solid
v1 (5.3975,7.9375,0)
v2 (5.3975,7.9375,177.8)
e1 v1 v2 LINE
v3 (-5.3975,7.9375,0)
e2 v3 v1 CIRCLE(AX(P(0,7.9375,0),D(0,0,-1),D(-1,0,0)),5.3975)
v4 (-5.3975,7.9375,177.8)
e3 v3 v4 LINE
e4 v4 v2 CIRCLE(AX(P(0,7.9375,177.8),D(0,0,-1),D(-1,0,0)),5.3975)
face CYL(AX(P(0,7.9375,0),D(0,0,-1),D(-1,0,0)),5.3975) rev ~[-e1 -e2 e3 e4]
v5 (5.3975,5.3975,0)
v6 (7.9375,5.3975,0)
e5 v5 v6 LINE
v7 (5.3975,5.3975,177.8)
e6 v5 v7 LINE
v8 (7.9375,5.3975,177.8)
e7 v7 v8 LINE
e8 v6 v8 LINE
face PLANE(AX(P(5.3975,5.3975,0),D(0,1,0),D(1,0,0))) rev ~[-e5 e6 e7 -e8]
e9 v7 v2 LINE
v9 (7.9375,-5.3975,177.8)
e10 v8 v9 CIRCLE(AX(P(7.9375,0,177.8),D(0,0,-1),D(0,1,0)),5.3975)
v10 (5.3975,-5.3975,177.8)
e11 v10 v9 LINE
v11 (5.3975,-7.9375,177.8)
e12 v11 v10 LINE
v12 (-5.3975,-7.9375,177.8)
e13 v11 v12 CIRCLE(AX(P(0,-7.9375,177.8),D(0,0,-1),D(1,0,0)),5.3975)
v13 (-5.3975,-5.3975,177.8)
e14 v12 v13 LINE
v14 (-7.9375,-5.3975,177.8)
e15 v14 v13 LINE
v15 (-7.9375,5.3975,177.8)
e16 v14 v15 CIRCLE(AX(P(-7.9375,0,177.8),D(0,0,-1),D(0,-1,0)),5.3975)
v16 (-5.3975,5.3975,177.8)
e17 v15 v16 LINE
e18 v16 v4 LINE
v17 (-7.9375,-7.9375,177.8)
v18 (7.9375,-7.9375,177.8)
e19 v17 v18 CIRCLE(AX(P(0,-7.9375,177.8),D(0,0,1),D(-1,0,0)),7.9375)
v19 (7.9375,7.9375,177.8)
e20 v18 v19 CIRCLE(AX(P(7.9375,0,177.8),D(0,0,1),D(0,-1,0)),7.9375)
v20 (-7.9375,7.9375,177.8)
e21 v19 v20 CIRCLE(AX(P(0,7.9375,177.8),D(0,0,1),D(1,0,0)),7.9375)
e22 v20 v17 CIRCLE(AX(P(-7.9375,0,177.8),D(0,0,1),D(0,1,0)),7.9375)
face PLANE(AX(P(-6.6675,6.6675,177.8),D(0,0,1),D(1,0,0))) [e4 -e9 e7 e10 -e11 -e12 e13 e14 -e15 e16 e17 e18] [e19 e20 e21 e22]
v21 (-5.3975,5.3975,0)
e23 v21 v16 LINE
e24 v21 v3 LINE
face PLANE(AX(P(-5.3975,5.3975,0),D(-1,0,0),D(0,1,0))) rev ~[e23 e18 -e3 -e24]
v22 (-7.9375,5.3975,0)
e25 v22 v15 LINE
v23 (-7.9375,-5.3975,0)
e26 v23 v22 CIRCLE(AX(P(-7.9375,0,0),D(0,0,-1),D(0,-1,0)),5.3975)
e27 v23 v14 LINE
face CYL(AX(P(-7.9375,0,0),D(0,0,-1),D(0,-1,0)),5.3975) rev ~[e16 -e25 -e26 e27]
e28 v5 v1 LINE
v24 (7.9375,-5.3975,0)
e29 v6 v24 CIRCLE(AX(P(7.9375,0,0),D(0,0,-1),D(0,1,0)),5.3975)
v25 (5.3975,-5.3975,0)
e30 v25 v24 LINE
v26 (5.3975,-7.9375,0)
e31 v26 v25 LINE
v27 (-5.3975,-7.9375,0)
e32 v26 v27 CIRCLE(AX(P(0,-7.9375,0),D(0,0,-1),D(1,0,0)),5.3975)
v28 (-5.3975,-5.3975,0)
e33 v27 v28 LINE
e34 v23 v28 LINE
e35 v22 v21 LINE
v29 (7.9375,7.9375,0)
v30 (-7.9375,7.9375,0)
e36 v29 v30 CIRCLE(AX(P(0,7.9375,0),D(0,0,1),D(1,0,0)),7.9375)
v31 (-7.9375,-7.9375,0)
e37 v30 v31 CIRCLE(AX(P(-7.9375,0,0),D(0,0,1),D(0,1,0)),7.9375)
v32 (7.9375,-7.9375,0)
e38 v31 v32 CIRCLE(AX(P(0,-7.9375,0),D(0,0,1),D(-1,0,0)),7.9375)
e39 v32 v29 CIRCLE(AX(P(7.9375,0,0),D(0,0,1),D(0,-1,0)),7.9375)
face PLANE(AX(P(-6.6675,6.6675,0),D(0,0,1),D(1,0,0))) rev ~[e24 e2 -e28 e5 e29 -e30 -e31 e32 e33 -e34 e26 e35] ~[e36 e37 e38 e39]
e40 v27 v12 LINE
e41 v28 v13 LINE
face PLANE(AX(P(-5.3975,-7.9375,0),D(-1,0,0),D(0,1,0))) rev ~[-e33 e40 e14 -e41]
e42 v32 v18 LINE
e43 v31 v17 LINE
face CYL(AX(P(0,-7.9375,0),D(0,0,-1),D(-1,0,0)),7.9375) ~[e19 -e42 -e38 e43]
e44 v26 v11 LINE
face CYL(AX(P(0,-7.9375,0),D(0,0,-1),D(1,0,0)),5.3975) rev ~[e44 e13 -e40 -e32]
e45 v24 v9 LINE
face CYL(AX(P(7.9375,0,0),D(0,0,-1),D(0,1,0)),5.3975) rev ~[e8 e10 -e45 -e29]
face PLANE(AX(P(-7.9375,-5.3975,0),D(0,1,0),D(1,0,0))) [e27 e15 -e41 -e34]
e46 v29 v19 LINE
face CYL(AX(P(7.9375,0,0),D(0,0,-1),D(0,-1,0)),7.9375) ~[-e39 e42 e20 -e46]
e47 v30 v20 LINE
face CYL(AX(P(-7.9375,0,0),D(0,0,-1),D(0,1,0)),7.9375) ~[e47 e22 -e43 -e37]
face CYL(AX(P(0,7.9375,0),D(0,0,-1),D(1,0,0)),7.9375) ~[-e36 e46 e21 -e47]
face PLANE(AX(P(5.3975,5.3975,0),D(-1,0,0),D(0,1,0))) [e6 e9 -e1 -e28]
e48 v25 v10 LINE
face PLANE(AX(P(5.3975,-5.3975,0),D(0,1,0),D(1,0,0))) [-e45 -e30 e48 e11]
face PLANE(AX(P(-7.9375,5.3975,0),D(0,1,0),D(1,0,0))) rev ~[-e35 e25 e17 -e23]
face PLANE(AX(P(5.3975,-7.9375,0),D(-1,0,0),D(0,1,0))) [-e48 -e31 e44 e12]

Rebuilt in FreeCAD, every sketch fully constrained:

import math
import FreeCAD as App
import Part
import Sketcher

V = App.Vector
Q = App.Units.Quantity

doc = App.newDocument("Part")
body = doc.addObject("PartDesign::Body", "Body")

# Sketch on XY plane
sketch1 = doc.addObject("Sketcher::SketchObject", "Sketch")
body.addObject(sketch1)
sketch1.AttachmentSupport = (doc.XY_Plane, [""])
sketch1.MapMode = "FlatFace"
sketch1.addGeometry(Part.ArcOfCircle(Part.Circle(V(0, -7.9375, 0), V(0, 0, 1), 7.9375), math.radians(180), math.radians(360)), False)
sketch1.addGeometry(Part.ArcOfCircle(Part.Circle(V(7.9375, 0, 0), V(0, 0, 1), 7.9375), math.radians(-90), math.radians(90)), False)
sketch1.addGeometry(Part.ArcOfCircle(Part.Circle(V(0, 7.9375, 0), V(0, 0, 1), 7.9375), math.radians(0), math.radians(180)), False)
sketch1.addGeometry(Part.ArcOfCircle(Part.Circle(V(-7.9375, 0, 0), V(0, 0, 1), 7.9375), math.radians(90), math.radians(270)), False)
sketch1.addGeometry(Part.ArcOfCircle(Part.Circle(V(7.9375, 0, 0), V(0, 0, 1), 5.3975), math.radians(-90), math.radians(90)), False)
sketch1.addGeometry(Part.LineSegment(V(7.9375, -5.3975, 0), V(5.3975, -5.3975, 0)), False)
sketch1.addGeometry(Part.LineSegment(V(5.3975, -5.3975, 0), V(5.3975, -7.9375, 0)), False)
sketch1.addGeometry(Part.ArcOfCircle(Part.Circle(V(0, -7.9375, 0), V(0, 0, 1), 5.3975), math.radians(180), math.radians(360)), False)
sketch1.addGeometry(Part.LineSegment(V(-5.3975, -7.9375, 0), V(-5.3975, -5.3975, 0)), False)
sketch1.addGeometry(Part.LineSegment(V(-5.3975, -5.3975, 0), V(-7.9375, -5.3975, 0)), False)
sketch1.addGeometry(Part.ArcOfCircle(Part.Circle(V(-7.9375, 0, 0), V(0, 0, 1), 5.3975), math.radians(90), math.radians(270)), False)
sketch1.addGeometry(Part.LineSegment(V(-7.9375, 5.3975, 0), V(-5.3975, 5.3975, 0)), False)
sketch1.addGeometry(Part.LineSegment(V(-5.3975, 5.3975, 0), V(-5.3975, 7.9375, 0)), False)
sketch1.addGeometry(Part.ArcOfCircle(Part.Circle(V(0, 7.9375, 0), V(0, 0, 1), 5.3975), math.radians(0), math.radians(180)), False)
sketch1.addGeometry(Part.LineSegment(V(5.3975, 7.9375, 0), V(5.3975, 5.3975, 0)), False)
sketch1.addGeometry(Part.LineSegment(V(5.3975, 5.3975, 0), V(7.9375, 5.3975, 0)), False)
sketch1.addConstraint(Sketcher.Constraint("Coincident", 0, 2, 1, 1))
sketch1.addConstraint(Sketcher.Constraint("Coincident", 1, 2, 2, 1))
sketch1.addConstraint(Sketcher.Constraint("Coincident", 2, 2, 3, 1))
sketch1.addConstraint(Sketcher.Constraint("Coincident", 3, 2, 0, 1))
sketch1.addConstraint(Sketcher.Constraint("Tangent", 4, 1, 5, 1))
sketch1.addConstraint(Sketcher.Constraint("Coincident", 5, 2, 6, 1))
sketch1.addConstraint(Sketcher.Constraint("Tangent", 6, 2, 7, 2))
sketch1.addConstraint(Sketcher.Constraint("Tangent", 7, 1, 8, 1))
sketch1.addConstraint(Sketcher.Constraint("Coincident", 8, 2, 9, 1))
sketch1.addConstraint(Sketcher.Constraint("Tangent", 9, 2, 10, 2))
sketch1.addConstraint(Sketcher.Constraint("Tangent", 10, 1, 11, 1))
sketch1.addConstraint(Sketcher.Constraint("Coincident", 11, 2, 12, 1))
sketch1.addConstraint(Sketcher.Constraint("Tangent", 12, 2, 13, 2))
sketch1.addConstraint(Sketcher.Constraint("Tangent", 13, 1, 14, 1))
sketch1.addConstraint(Sketcher.Constraint("Coincident", 14, 2, 15, 1))
sketch1.addConstraint(Sketcher.Constraint("Tangent", 15, 2, 4, 2))
sketch1.addConstraint(Sketcher.Constraint("Horizontal", 5))
sketch1.addConstraint(Sketcher.Constraint("Vertical", 6))
sketch1.addConstraint(Sketcher.Constraint("Vertical", 8))
sketch1.addConstraint(Sketcher.Constraint("Horizontal", 9))
sketch1.addConstraint(Sketcher.Constraint("Horizontal", 11))
sketch1.addConstraint(Sketcher.Constraint("Vertical", 12))
sketch1.addConstraint(Sketcher.Constraint("Vertical", 14))
sketch1.addConstraint(Sketcher.Constraint("Horizontal", 15))
sketch1.addConstraint(Sketcher.Constraint("Coincident", 4, 3, 1, 3))
sketch1.addConstraint(Sketcher.Constraint("Coincident", 7, 3, 0, 3))
sketch1.addConstraint(Sketcher.Constraint("Coincident", 10, 3, 3, 3))
sketch1.addConstraint(Sketcher.Constraint("Coincident", 13, 3, 2, 3))
sketch1.addConstraint(Sketcher.Constraint("Equal", 0, 1))
sketch1.addConstraint(Sketcher.Constraint("Equal", 1, 2))
sketch1.addConstraint(Sketcher.Constraint("Equal", 2, 3))
sketch1.addConstraint(Sketcher.Constraint("Equal", 4, 7))
sketch1.addConstraint(Sketcher.Constraint("Equal", 7, 10))
sketch1.addConstraint(Sketcher.Constraint("Equal", 10, 13))
sketch1.addConstraint(Sketcher.Constraint("Symmetric", 0, 3, 2, 3, -1, 1))
sketch1.addConstraint(Sketcher.Constraint("Symmetric", 1, 3, 3, 3, -1, 1))
sketch1.addConstraint(Sketcher.Constraint("Symmetric", 1, 2, 2, 2, -2))
sketch1.addConstraint(Sketcher.Constraint("Horizontal", 7, 3, 0, 2))
sketch1.addConstraint(Sketcher.Constraint("Vertical", 4, 3, 0, 2))
sketch1.addConstraint(Sketcher.Constraint("DistanceX", 5, 2, 5, 1, Q("0.1 in")))
sketch1.addConstraint(Sketcher.Constraint("Radius", 0, Q("0.3125 in")))
pad1 = doc.addObject("PartDesign::Pad", "Pad")
body.addObject(pad1)
pad1.Profile = sketch1
pad1.Length = Q("7 in")

doc.recompute()
